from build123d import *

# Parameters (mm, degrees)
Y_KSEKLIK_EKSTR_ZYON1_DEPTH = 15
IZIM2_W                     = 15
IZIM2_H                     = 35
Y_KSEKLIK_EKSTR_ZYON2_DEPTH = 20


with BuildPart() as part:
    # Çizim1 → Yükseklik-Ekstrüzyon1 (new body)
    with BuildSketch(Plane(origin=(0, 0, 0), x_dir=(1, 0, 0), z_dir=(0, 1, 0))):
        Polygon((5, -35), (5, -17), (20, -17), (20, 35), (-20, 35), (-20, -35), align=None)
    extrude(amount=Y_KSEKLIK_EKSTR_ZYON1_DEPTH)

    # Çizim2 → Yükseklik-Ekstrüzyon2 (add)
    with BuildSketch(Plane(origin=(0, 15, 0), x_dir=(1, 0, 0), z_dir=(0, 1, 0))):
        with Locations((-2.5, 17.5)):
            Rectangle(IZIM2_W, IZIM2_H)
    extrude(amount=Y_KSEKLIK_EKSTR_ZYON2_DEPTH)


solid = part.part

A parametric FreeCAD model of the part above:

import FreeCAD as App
import Part
import Sketcher
from FreeCAD import Vector
Q = App.Units.Quantity


def add_polygon(sketch, points):
    """Adds a closed chain of lines whose ends are joined by coincident constraints."""
    first, n = sketch.GeometryCount, len(points)
    for a, b in zip(points, points[1:] + points[:1]):
        sketch.addGeometry(Part.LineSegment(App.Vector(*a, 0), App.Vector(*b, 0)), False)
    for i in range(n):
        sketch.addConstraint(Sketcher.Constraint("Coincident", first + i, 2, first + (i + 1) % n, 1))

doc = App.newDocument("Part")
body = doc.addObject("PartDesign::Body", "Body")

# Sketch on XZ plane
sketch1 = body.newObject("Sketcher::SketchObject", "Sketch")
sketch1.AttachmentSupport = (doc.getObject("XZ_Plane"), [""])
sketch1.MapMode = "FlatFace"
add_polygon(sketch1, [(5, 35), (5, 17), (20, 17), (20, -35), (-20, -35), (-20, 35)])  # lines 0-5
sketch1.addConstraint(Sketcher.Constraint("Vertical", 0))
sketch1.addConstraint(Sketcher.Constraint("Horizontal", 1))
sketch1.addConstraint(Sketcher.Constraint("Vertical", 2))
sketch1.addConstraint(Sketcher.Constraint("Horizontal", 3))
sketch1.addConstraint(Sketcher.Constraint("Vertical", 4))
sketch1.addConstraint(Sketcher.Constraint("Horizontal", 5))
sketch1.addConstraint(Sketcher.Constraint("Symmetric", 2, 2, 4, 2, -1, 1))
sketch1.addConstraint(Sketcher.Constraint("DistanceX", 1, 1, 1, 2, Q("15 mm")))
sketch1.addConstraint(Sketcher.Constraint("DistanceX", 3, 2, 3, 1, Q("40 mm")))
sketch1.addConstraint(Sketcher.Constraint("DistanceY", 0, 2, 0, 1, Q("18 mm")))
sketch1.addConstraint(Sketcher.Constraint("DistanceY", 2, 2, 2, 1, Q("52 mm")))
pad1 = body.newObject("PartDesign::Pad", "Pad")
pad1.Profile = sketch1
pad1.Length = 15
pad1.Reversed = True

# Sketch on XZ plane
sketch2 = body.newObject("Sketcher::SketchObject", "Sketch001")
sketch2.AttachmentSupport = (doc.getObject("XZ_Plane"), [""])
sketch2.MapMode = "FlatFace"
sketch2.AttachmentOffset = App.Placement(Vector(0, 0, -15), App.Rotation())
add_polygon(sketch2, [(-10, -35), (-10, 0), (5, 0), (5, -35)])  # lines 0-3
sketch2.addConstraint(Sketcher.Constraint("Vertical", 0))
sketch2.addConstraint(Sketcher.Constraint("Horizontal", 1))
sketch2.addConstraint(Sketcher.Constraint("Vertical", 2))
sketch2.addConstraint(Sketcher.Constraint("Horizontal", 3))
sketch2.addConstraint(Sketcher.Constraint("PointOnObject", 0, 2, -1))
sketch2.addConstraint(Sketcher.Constraint("DistanceX", 1, 1, 1, 2, Q("15 mm")))
sketch2.addConstraint(Sketcher.Constraint("DistanceY", 0, 1, 0, 2, Q("35 mm")))
sketch2.addConstraint(Sketcher.Constraint("DistanceX", 0, 2, -1, 1, Q("10 mm")))
pad2 = body.newObject("PartDesign::Pad", "Pad001")
pad2.Profile = sketch2
pad2.Length = 20
pad2.Reversed = True

doc.recompute()
